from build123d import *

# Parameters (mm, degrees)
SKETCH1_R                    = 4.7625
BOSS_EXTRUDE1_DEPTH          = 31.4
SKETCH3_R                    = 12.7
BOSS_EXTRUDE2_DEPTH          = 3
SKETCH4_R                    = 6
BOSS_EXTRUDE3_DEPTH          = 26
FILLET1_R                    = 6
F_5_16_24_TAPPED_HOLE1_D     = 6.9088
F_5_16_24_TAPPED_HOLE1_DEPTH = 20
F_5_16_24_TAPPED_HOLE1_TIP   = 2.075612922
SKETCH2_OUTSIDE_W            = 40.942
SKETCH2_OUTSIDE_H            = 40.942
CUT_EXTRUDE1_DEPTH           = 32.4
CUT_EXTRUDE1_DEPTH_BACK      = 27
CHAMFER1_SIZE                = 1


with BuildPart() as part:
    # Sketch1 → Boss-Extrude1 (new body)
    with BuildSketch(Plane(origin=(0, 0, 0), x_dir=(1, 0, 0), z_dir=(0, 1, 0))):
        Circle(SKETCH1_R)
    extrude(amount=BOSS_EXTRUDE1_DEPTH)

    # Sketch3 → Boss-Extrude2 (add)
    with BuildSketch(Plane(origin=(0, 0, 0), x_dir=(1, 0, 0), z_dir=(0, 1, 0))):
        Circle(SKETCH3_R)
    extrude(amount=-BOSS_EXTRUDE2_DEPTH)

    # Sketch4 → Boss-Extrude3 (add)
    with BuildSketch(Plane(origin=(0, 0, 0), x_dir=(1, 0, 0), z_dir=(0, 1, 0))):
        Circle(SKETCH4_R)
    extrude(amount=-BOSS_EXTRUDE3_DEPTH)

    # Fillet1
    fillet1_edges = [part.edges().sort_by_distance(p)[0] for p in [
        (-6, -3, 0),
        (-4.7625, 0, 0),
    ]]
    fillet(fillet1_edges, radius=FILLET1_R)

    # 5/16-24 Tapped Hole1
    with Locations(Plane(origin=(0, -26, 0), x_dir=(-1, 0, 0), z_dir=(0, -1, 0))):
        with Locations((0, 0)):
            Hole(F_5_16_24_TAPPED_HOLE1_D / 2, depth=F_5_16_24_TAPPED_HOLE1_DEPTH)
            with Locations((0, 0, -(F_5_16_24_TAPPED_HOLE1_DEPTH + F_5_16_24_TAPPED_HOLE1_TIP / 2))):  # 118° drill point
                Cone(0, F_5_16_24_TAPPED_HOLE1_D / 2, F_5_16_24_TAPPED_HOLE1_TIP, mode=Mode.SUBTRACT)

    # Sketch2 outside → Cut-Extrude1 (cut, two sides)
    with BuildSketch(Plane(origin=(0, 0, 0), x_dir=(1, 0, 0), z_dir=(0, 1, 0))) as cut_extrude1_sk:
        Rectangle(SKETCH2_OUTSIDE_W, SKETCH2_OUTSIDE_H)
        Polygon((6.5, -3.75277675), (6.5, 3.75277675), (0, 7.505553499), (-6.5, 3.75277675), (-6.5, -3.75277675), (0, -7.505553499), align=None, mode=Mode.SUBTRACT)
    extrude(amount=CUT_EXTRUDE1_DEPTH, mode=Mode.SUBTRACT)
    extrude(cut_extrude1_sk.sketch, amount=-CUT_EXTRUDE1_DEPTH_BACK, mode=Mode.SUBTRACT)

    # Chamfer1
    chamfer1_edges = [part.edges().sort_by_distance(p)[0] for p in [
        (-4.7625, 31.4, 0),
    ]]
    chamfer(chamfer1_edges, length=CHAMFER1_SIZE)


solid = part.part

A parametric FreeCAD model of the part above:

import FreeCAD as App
import Part
import Sketcher
from FreeCAD import Vector
Q = App.Units.Quantity


def edges_at(feature, points):
    """Names of the edges that pass closest to the given points."""
    edges = feature.Shape.Edges
    near = lambda p: min(range(len(edges)), key=lambda i: edges[i].distToShape(Part.Vertex(*p))[0])
    return sorted({f"Edge{near(p) + 1}" for p in points})


def add_polygon(sketch, points):
    """Adds a closed chain of lines whose ends are joined by coincident constraints."""
    first, n = sketch.GeometryCount, len(points)
    for a, b in zip(points, points[1:] + points[:1]):
        sketch.addGeometry(Part.LineSegment(App.Vector(*a, 0), App.Vector(*b, 0)), False)
    for i in range(n):
        sketch.addConstraint(Sketcher.Constraint("Coincident", first + i, 2, first + (i + 1) % n, 1))

doc = App.newDocument("Part")
body = doc.addObject("PartDesign::Body", "Body")

sketch1 = doc.addObject("Sketcher::SketchObject", "Sketch")
body.addObject(sketch1)
sketch1.AttachmentSupport = (doc.XZ_Plane, [""])
sketch1.MapMode = "FlatFace"
sketch1.addGeometry(Part.Circle(Vector(0, 0, 0), Vector(0, 0, 1), 4.8), False)
sketch1.addConstraint([
    Sketcher.Constraint("Coincident", 0, 3, -1, 1),
    Sketcher.Constraint("Diameter", 0, Q("9.525 mm")),
])
pad1 = doc.addObject("PartDesign::Pad", "Pad")
body.addObject(pad1)
pad1.Profile = sketch1
pad1.Length = 31.4
pad1.Reversed = True

sketch2 = doc.addObject("Sketcher::SketchObject", "Sketch001")
body.addObject(sketch2)
sketch2.AttachmentSupport = (doc.XZ_Plane, [""])
sketch2.MapMode = "FlatFace"
sketch2.addGeometry(Part.Circle(Vector(0, 0, 0), Vector(0, 0, 1), 13), False)
sketch2.addConstraint([
    Sketcher.Constraint("Coincident", 0, 3, -1, 1),
    Sketcher.Constraint("Diameter", 0, Q("25.4 mm")),
])
pad2 = doc.addObject("PartDesign::Pad", "Pad001")
body.addObject(pad2)
pad2.Profile = sketch2
pad2.Length = 3

sketch3 = doc.addObject("Sketcher::SketchObject", "Sketch002")
body.addObject(sketch3)
sketch3.AttachmentSupport = (doc.XZ_Plane, [""])
sketch3.MapMode = "FlatFace"
sketch3.addGeometry(Part.Circle(Vector(0, 0, 0), Vector(0, 0, 1), 6), False)
sketch3.addConstraint([
    Sketcher.Constraint("Coincident", 0, 3, -1, 1),
    Sketcher.Constraint("Diameter", 0, Q("12 mm")),
])
pad3 = doc.addObject("PartDesign::Pad", "Pad002")
body.addObject(pad3)
pad3.Profile = sketch3
pad3.Length = 26
doc.recompute()

fillet = doc.addObject("PartDesign::Fillet", "Fillet")
body.addObject(fillet)
fillet.Base = (pad3, edges_at(pad3, [(-6, -3, 0), (-4.763, 0, 0)]))
fillet.Radius = 6

sketch4 = doc.addObject("Sketcher::SketchObject", "Sketch003")
body.addObject(sketch4)
sketch4.AttachmentSupport = (doc.XZ_Plane, [""])
sketch4.MapMode = "FlatFace"
sketch4.AttachmentOffset = App.Placement(Vector(0, 0, 26), App.Rotation())
sketch4.addGeometry(Part.Circle(Vector(0, 0, 0), Vector(0, 0, 1), 3.5), False)
sketch4.addConstraint([
    Sketcher.Constraint("Coincident", 0, 3, -1, 1),
    Sketcher.Constraint("Diameter", 0, Q("6.9088 mm")),
])
doc.recompute()
hole = doc.addObject("PartDesign::Hole", "Hole")
body.addObject(hole)
hole.Profile = sketch4
hole.ThreadType = "None"
hole.Diameter = 6.9088
hole.DepthType = "Dimension"
hole.Depth = 20
hole.DrillPoint = "Angled"
hole.DrillPointAngle = 118

sketch5 = doc.addObject("Sketcher::SketchObject", "Sketch004")
body.addObject(sketch5)
sketch5.AttachmentSupport = (doc.XZ_Plane, [""])
sketch5.MapMode = "FlatFace"
add_polygon(sketch5, [(-20, -20), (-20, 20), (20, 20), (20, -20)])
add_polygon(sketch5, [(6, -4), (6, 4), (0, 8), (-6, 4), (-6, -4), (0, -8)])
sketch5.addConstraint([
    Sketcher.Constraint("Vertical", 0),
    Sketcher.Constraint("Horizontal", 1),
    Sketcher.Constraint("Vertical", 2),
    Sketcher.Constraint("Horizontal", 3),
    Sketcher.Constraint("Vertical", 4),
    Sketcher.Constraint("Vertical", 7),
    Sketcher.Constraint("Symmetric", 0, 2, 2, 2, -1, 1),
    Sketcher.Constraint("Symmetric", 4, 2, 7, 2, -1, 1),
    Sketcher.Constraint("Symmetric", 5, 2, 8, 2, -1, 1),
    Sketcher.Constraint("PointOnObject", 5, 2, -2),
    Sketcher.Constraint("Parallel", 6, 9),
    Sketcher.Constraint("Horizontal", 4, 2, 6, 2),
    Sketcher.Constraint("Equal", 3, 0),
    Sketcher.Constraint("Angle", 5, Q("150 deg")),
    Sketcher.Constraint("DistanceX", 6, 2, 4, 2, Q("13 mm")),
    Sketcher.Constraint("DistanceX", 1, 1, 1, 2, Q("40.942 mm")),
    Sketcher.Constraint("DistanceY", 4, 1, 4, 2, Q("7.505554 mm")),
])
pocket1 = doc.addObject("PartDesign::Pocket", "Pocket")
body.addObject(pocket1)
pocket1.Profile = sketch5
pocket1.Type = "ThroughAll"
pocket1.Midplane = True
doc.recompute()

chamfer = doc.addObject("PartDesign::Chamfer", "Chamfer")
body.addObject(chamfer)
chamfer.Base = (pocket1, edges_at(pocket1, [(-4.763, 31.4, 0)]))
chamfer.Size = 1

doc.recompute()
